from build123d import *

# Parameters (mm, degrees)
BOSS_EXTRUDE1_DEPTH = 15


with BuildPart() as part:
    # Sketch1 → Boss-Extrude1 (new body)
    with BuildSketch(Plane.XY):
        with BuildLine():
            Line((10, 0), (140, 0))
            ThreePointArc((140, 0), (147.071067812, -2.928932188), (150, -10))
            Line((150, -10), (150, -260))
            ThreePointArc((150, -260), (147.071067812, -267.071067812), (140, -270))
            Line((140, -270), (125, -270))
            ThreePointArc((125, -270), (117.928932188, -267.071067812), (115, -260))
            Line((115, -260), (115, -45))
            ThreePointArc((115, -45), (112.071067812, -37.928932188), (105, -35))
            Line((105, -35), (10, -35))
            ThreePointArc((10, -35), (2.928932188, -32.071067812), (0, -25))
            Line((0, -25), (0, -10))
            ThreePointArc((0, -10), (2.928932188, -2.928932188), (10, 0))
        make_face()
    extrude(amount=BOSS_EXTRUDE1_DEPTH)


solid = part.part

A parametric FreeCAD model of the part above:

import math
import FreeCAD as App
import Part
import Sketcher
from FreeCAD import Vector

doc = App.newDocument("Part")
body = doc.addObject("PartDesign::Body", "Body")

sketch1 = body.newObject("Sketcher::SketchObject", "Sketch")
sketch1.AttachmentSupport = (doc.getObject("XY_Plane"), [""])
sketch1.MapMode = "FlatFace"
sketch1.addGeometry(Part.LineSegment(Vector(140, 0, 0), Vector(10, 0, 0)), False)
sketch1.addGeometry(Part.ArcOfCircle(Part.Circle(Vector(10, -10, 0), Vector(0, 0, 1), 10), math.radians(90), math.radians(180)), False)
sketch1.addGeometry(Part.LineSegment(Vector(0, -10, 0), Vector(0, -25, 0)), False)
sketch1.addGeometry(Part.ArcOfCircle(Part.Circle(Vector(10, -25, 0), Vector(0, 0, 1), 10), math.radians(180), math.radians(270)), False)
sketch1.addGeometry(Part.LineSegment(Vector(10, -35, 0), Vector(105, -35, 0)), False)
sketch1.addGeometry(Part.ArcOfCircle(Part.Circle(Vector(105, -45, 0), Vector(0, 0, 1), 10), math.radians(0), math.radians(90)), False)
sketch1.addGeometry(Part.LineSegment(Vector(115, -45, 0), Vector(115, -260, 0)), False)
sketch1.addGeometry(Part.ArcOfCircle(Part.Circle(Vector(125, -260, 0), Vector(0, 0, 1), 10), math.radians(180), math.radians(270)), False)
sketch1.addGeometry(Part.LineSegment(Vector(125, -270, 0), Vector(140, -270, 0)), False)
sketch1.addGeometry(Part.ArcOfCircle(Part.Circle(Vector(140, -260, 0), Vector(0, 0, 1), 10), math.radians(-90), math.radians(0)), False)
sketch1.addGeometry(Part.LineSegment(Vector(150, -260, 0), Vector(150, -10, 0)), False)
sketch1.addGeometry(Part.ArcOfCircle(Part.Circle(Vector(140, -10, 0), Vector(0, 0, 1), 10), math.radians(0), math.radians(90)), False)
sketch1.addConstraint(Sketcher.Constraint("Tangent", 0, 2, 1, 1))
sketch1.addConstraint(Sketcher.Constraint("Tangent", 1, 2, 2, 1))
sketch1.addConstraint(Sketcher.Constraint("Tangent", 2, 2, 3, 1))
sketch1.addConstraint(Sketcher.Constraint("Tangent", 3, 2, 4, 1))
sketch1.addConstraint(Sketcher.Constraint("Tangent", 4, 2, 5, 2))
sketch1.addConstraint(Sketcher.Constraint("Tangent", 5, 1, 6, 1))
sketch1.addConstraint(Sketcher.Constraint("Tangent", 6, 2, 7, 1))
sketch1.addConstraint(Sketcher.Constraint("Tangent", 7, 2, 8, 1))
sketch1.addConstraint(Sketcher.Constraint("Tangent", 8, 2, 9, 1))
sketch1.addConstraint(Sketcher.Constraint("Tangent", 9, 2, 10, 1))
sketch1.addConstraint(Sketcher.Constraint("Tangent", 10, 2, 11, 1))
sketch1.addConstraint(Sketcher.Constraint("Tangent", 11, 2, 0, 1))
sketch1.addConstraint(Sketcher.Constraint("Horizontal", 0))
sketch1.addConstraint(Sketcher.Constraint("Vertical", 2))
sketch1.addConstraint(Sketcher.Constraint("Horizontal", 4))
sketch1.addConstraint(Sketcher.Constraint("Vertical", 6))
sketch1.addConstraint(Sketcher.Constraint("Horizontal", 8))
sketch1.addConstraint(Sketcher.Constraint("Vertical", 10))
sketch1.addConstraint(Sketcher.Constraint("Equal", 1, 3))
sketch1.addConstraint(Sketcher.Constraint("Equal", 3, 5))
sketch1.addConstraint(Sketcher.Constraint("Equal", 5, 7))
sketch1.addConstraint(Sketcher.Constraint("Equal", 7, 9))
sketch1.addConstraint(Sketcher.Constraint("Equal", 9, 11))
sketch1.addConstraint(Sketcher.Constraint("PointOnObject", 0, 2, -1))
sketch1.addConstraint(Sketcher.Constraint("PointOnObject", 1, 2, -2))
sketch1.addConstraint(Sketcher.Constraint("Equal", 8, 2))
sketch1.addConstraint(Sketcher.Constraint("Radius", 1, 10.0))
sketch1.addConstraint(Sketcher.Constraint("DistanceX", 0, 2, 0, 1, 130.0))
sketch1.addConstraint(Sketcher.Constraint("DistanceX", 4, 1, 4, 2, 95.0))
sketch1.addConstraint(Sketcher.Constraint("DistanceY", 6, 2, 6, 1, 215.0))
pad1 = body.newObject("PartDesign::Pad", "Pad")
pad1.Profile = sketch1
pad1.Length = 15

doc.recompute()
